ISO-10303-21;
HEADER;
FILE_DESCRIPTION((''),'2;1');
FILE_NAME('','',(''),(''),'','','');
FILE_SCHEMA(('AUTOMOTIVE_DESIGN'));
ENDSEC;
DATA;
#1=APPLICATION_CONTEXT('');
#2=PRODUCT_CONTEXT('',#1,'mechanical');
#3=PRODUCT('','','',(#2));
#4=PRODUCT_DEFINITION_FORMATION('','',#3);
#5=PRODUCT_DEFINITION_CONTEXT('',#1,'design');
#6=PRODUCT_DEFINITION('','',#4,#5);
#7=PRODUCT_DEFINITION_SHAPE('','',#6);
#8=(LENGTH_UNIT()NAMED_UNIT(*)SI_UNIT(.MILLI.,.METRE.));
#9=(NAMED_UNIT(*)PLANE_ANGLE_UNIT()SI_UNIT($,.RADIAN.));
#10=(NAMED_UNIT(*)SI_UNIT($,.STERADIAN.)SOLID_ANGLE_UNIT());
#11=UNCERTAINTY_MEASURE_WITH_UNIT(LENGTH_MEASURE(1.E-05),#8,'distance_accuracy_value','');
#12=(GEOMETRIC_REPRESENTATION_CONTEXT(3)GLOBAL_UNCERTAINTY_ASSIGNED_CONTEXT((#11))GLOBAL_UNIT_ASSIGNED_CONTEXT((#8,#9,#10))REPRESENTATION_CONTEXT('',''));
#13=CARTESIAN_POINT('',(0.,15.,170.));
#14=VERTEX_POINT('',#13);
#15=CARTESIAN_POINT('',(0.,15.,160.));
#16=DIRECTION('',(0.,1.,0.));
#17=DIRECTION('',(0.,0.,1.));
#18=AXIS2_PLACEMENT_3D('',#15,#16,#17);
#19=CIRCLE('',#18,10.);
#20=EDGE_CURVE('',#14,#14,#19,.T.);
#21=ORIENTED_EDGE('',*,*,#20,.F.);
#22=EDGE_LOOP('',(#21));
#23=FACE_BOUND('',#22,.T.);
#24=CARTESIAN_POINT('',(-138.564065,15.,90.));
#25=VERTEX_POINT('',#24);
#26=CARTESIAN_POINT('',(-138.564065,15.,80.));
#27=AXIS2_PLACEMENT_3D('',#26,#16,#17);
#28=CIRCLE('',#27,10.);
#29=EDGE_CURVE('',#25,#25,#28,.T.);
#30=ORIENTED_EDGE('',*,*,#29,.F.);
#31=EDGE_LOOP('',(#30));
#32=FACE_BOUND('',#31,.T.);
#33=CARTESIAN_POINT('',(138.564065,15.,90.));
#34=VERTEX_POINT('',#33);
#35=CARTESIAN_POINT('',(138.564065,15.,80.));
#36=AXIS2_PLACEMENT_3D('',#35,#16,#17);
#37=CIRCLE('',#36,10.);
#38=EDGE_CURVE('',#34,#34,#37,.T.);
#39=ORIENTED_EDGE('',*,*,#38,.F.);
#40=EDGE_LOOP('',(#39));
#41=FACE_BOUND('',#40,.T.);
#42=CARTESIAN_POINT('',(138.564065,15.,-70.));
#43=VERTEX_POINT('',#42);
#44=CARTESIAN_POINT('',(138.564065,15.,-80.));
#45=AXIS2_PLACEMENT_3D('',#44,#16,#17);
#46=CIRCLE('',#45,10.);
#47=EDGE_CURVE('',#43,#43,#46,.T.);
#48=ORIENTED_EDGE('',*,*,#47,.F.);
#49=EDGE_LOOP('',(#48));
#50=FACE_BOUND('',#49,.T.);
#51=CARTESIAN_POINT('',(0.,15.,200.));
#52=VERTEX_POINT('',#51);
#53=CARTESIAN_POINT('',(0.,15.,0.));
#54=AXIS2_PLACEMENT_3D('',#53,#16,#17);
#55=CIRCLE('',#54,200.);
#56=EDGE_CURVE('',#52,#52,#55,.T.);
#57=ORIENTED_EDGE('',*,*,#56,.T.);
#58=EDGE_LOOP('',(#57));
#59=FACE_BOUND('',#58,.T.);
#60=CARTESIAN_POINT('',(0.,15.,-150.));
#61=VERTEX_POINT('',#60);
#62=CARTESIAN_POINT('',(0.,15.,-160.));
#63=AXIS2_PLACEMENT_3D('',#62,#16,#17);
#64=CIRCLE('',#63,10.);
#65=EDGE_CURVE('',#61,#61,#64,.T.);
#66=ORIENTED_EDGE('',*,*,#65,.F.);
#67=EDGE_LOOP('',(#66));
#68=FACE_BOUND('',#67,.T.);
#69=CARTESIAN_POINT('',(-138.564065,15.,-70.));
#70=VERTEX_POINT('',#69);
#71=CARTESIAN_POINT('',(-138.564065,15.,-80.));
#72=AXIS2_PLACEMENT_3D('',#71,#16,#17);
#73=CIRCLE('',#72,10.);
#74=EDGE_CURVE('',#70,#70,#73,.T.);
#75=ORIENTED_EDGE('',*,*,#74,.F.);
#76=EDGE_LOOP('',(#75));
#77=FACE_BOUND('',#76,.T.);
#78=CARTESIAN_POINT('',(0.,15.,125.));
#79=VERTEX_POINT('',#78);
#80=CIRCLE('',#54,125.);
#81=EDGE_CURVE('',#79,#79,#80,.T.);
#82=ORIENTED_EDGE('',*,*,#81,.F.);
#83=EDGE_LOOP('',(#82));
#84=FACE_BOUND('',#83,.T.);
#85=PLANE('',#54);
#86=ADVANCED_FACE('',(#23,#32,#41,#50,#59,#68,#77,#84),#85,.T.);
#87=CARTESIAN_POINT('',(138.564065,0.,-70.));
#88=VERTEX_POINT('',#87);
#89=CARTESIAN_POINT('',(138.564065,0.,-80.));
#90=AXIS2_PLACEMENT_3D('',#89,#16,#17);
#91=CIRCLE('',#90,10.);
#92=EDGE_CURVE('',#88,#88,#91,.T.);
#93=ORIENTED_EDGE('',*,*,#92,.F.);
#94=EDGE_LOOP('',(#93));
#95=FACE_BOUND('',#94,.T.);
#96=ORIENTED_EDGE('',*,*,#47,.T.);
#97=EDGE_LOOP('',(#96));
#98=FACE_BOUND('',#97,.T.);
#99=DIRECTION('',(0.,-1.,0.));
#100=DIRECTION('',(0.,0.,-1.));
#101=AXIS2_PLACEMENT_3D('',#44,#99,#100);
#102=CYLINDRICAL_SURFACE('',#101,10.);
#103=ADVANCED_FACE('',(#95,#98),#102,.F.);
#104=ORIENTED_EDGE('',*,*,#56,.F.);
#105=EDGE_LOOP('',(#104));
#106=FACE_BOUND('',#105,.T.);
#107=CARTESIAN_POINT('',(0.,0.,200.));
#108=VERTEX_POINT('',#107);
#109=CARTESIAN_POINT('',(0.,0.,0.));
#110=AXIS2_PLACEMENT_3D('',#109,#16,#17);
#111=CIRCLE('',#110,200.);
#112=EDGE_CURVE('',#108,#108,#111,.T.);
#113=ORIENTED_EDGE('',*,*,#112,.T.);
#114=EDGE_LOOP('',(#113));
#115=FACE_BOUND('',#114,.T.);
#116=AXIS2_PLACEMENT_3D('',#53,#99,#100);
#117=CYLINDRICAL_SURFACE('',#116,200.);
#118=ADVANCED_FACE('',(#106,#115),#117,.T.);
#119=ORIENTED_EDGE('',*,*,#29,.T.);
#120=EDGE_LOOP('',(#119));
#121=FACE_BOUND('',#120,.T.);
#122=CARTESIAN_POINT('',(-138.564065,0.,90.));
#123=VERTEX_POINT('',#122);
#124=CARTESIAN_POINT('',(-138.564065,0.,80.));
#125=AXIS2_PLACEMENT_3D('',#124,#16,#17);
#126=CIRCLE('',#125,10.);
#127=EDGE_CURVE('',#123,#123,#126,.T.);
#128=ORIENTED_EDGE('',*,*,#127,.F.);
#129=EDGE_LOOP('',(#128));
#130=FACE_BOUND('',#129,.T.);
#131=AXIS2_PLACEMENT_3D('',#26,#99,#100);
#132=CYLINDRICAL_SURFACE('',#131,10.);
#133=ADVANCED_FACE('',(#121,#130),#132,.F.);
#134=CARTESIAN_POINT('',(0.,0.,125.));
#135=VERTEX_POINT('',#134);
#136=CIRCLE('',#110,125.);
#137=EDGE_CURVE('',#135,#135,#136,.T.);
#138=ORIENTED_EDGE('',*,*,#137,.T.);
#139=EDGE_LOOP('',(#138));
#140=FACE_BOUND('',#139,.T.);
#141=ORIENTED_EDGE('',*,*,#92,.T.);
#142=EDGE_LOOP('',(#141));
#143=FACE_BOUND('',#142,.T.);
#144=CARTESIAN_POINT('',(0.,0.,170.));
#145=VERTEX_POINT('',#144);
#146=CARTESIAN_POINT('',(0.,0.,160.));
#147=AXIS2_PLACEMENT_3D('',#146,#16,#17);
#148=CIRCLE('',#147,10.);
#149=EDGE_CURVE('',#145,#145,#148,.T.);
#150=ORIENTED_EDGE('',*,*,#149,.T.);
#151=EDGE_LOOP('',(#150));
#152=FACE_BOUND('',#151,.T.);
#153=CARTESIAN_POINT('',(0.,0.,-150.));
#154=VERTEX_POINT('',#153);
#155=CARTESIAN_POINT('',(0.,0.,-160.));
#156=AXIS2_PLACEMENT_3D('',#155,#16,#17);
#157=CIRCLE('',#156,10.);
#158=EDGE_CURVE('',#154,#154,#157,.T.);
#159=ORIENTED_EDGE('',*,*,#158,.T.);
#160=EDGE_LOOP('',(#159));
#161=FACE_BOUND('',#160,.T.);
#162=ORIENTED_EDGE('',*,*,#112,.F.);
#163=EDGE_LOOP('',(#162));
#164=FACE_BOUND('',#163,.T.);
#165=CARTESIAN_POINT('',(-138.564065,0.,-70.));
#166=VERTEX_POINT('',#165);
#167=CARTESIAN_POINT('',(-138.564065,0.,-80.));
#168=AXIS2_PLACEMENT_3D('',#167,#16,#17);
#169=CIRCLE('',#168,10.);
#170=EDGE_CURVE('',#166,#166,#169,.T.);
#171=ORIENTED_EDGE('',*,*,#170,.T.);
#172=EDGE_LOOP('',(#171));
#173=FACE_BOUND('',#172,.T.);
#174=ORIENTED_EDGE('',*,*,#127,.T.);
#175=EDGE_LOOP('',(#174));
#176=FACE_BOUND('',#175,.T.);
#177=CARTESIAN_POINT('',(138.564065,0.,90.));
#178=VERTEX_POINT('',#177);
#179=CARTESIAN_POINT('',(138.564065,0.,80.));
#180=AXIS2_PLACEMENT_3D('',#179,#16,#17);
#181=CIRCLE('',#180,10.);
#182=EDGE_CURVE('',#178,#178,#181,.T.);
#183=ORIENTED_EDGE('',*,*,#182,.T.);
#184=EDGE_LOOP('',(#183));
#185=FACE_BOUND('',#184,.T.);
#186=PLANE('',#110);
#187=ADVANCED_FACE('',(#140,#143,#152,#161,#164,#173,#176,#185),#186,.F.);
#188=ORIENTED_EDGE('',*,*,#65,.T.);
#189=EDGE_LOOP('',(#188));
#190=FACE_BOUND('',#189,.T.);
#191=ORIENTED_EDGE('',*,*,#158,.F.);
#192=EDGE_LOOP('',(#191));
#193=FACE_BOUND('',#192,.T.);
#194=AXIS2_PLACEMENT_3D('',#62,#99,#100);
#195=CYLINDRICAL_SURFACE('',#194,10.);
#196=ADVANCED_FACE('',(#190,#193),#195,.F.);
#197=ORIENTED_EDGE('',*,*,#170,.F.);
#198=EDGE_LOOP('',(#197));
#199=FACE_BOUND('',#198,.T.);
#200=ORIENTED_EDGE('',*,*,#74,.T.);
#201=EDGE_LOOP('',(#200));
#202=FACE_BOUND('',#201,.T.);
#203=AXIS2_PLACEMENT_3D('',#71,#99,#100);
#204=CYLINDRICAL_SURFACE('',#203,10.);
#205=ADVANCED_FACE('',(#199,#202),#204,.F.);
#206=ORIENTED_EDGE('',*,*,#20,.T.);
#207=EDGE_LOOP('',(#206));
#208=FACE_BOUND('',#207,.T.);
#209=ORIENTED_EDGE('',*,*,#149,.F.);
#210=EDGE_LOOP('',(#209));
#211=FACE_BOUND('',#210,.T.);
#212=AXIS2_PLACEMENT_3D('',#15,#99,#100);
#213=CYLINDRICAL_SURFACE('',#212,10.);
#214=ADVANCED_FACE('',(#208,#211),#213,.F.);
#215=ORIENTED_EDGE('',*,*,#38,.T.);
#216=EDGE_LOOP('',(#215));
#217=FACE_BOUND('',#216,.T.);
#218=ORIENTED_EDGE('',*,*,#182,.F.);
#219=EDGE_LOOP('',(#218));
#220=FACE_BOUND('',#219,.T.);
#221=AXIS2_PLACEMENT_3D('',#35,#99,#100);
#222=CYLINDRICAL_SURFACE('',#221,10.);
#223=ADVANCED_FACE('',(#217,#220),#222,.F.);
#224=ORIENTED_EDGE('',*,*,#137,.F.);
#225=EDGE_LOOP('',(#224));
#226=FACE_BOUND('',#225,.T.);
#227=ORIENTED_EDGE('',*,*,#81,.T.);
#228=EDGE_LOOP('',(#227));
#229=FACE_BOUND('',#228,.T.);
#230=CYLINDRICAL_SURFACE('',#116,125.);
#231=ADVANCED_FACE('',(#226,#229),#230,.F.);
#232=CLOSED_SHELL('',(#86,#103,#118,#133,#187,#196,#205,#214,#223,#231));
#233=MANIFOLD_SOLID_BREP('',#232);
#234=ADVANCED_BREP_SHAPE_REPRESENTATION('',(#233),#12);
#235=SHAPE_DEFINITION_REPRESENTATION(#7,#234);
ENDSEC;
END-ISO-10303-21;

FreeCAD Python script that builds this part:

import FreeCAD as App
import Part
import Sketcher

V = App.Vector
Q = App.Units.Quantity

doc = App.newDocument("Part")
body = doc.addObject("PartDesign::Body", "Body")

# Sketch on XZ plane
sketch1 = doc.addObject("Sketcher::SketchObject", "Sketch")
body.addObject(sketch1)
sketch1.AttachmentSupport = (doc.XZ_Plane, [""])
sketch1.MapMode = "FlatFace"
sketch1.addGeometry(Part.Circle(V(0, 0, 0), V(0, 0, 1), 200), False)
sketch1.addGeometry(Part.Circle(V(-138.564065, -80, 0), V(0, 0, 1), 10), False)
sketch1.addGeometry(Part.Circle(V(0, -160, 0), V(0, 0, 1), 10), False)
sketch1.addGeometry(Part.Circle(V(-138.564065, 80, 0), V(0, 0, 1), 10), False)
sketch1.addGeometry(Part.Circle(V(0, 0, 0), V(0, 0, 1), 125), False)
sketch1.addGeometry(Part.Circle(V(138.564065, -80, 0), V(0, 0, 1), 10), False)
sketch1.addGeometry(Part.Circle(V(0, 160, 0), V(0, 0, 1), 10), False)
sketch1.addGeometry(Part.Circle(V(138.564065, 80, 0), V(0, 0, 1), 10), False)
sketch1.addConstraint(Sketcher.Constraint("Coincident", 0, 3, -1, 1))
sketch1.addConstraint(Sketcher.Constraint("Coincident", 4, 3, -1, 1))
sketch1.addConstraint(Sketcher.Constraint("Equal", 1, 2))
sketch1.addConstraint(Sketcher.Constraint("Equal", 2, 3))
sketch1.addConstraint(Sketcher.Constraint("Equal", 3, 5))
sketch1.addConstraint(Sketcher.Constraint("Equal", 5, 6))
sketch1.addConstraint(Sketcher.Constraint("Equal", 6, 7))
sketch1.addConstraint(Sketcher.Constraint("Symmetric", 3, 3, 5, 3, -1, 1))
sketch1.addConstraint(Sketcher.Constraint("Symmetric", 2, 3, 6, 3, -1, 1))
sketch1.addConstraint(Sketcher.Constraint("Symmetric", 1, 3, 7, 3, -1, 1))
sketch1.addConstraint(Sketcher.Constraint("Symmetric", 1, 3, 5, 3, -2))
sketch1.addConstraint(Sketcher.Constraint("PointOnObject", 2, 3, -2))
sketch1.addConstraint(Sketcher.Constraint("Diameter", 0, Q("400 mm")))
sketch1.addConstraint(Sketcher.Constraint("Diameter", 1, Q("20 mm")))
sketch1.addConstraint(Sketcher.Constraint("Diameter", 4, Q("250 mm")))
sketch1.addConstraint(Sketcher.Constraint("DistanceY", 1, 3, -1, 1, Q("80 mm")))
sketch1.addConstraint(Sketcher.Constraint("DistanceY", 2, 3, -1, 1, Q("160 mm")))
sketch1.addConstraint(Sketcher.Constraint("DistanceX", 1, 3, 5, 3, Q("277.128129 mm")))
pad1 = doc.addObject("PartDesign::Pad", "Pad")
body.addObject(pad1)
pad1.Profile = sketch1
pad1.Length = 15
pad1.Reversed = True

doc.recompute()
